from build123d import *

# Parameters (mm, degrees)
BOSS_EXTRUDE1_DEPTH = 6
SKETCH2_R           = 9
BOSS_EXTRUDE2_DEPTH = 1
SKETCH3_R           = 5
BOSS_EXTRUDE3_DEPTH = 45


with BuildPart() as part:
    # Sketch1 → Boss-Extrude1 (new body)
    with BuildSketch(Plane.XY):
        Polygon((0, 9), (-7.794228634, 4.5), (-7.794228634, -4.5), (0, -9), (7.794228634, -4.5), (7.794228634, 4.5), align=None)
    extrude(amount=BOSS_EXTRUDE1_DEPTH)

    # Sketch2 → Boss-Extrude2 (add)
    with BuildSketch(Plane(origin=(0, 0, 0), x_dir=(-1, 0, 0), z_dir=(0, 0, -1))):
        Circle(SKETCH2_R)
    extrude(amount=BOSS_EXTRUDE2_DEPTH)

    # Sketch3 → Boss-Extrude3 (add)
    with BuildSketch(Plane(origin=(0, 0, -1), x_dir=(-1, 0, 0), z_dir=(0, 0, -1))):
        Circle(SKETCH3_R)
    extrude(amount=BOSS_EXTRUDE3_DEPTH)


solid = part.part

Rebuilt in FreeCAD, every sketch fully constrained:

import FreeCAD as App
import Part
import Sketcher

V = App.Vector
Q = App.Units.Quantity


def add_polygon(sketch, points):
    """Adds a closed chain of lines whose ends are joined by coincident constraints."""
    first, n = sketch.GeometryCount, len(points)
    for a, b in zip(points, points[1:] + points[:1]):
        sketch.addGeometry(Part.LineSegment(App.Vector(*a, 0), App.Vector(*b, 0)), False)
    for i in range(n):
        sketch.addConstraint(Sketcher.Constraint("Coincident", first + i, 2, first + (i + 1) % n, 1))

doc = App.newDocument("Part")
params = doc.addObject("Spreadsheet::Sheet", "Params")
for row, (alias, value) in enumerate([
    ("sketch1_height", "9 mm"),
    ("sketch1_length", "9 mm"),
    ("pad1_length", "6 mm"),
    ("sketch2_diameter", "18 mm"),
    ("pad2_length", "1 mm"),
    ("sketch3_diameter", "10 mm"),
    ("pad3_length", "45 mm"),
], start=1):
    params.set(f"A{row}", alias)
    params.set(f"B{row}", "=" + value)
    params.setAlias(f"B{row}", alias)

body = doc.addObject("PartDesign::Body", "Body")

# Sketch on XY plane
sketch1 = body.newObject("Sketcher::SketchObject", "Sketch")
sketch1.AttachmentSupport = (doc.getObject("XY_Plane"), [""])
sketch1.MapMode = "FlatFace"
add_polygon(sketch1, [(0, 9), (-7.794229, 4.5), (-7.794229, -4.5), (0, -9), (7.794229, -4.5), (7.794229, 4.5)])  # lines 0-5
sketch1.addConstraint([
    Sketcher.Constraint("Vertical", 1),
    Sketcher.Constraint("Vertical", 4),
    Sketcher.Constraint("Symmetric", 0, 2, 3, 2, -1, 1),
    Sketcher.Constraint("Symmetric", 2, 2, 5, 2, -1, 1),
    Sketcher.Constraint("PointOnObject", 2, 2, -2),
    Sketcher.Constraint("Parallel", 2, 5),
    Sketcher.Constraint("Horizontal", 1, 2, 3, 2),
    Sketcher.Constraint("DistanceY", 1, 2, 1, 1, Q("9 mm")),
    Sketcher.Constraint("Angle", 0, Q("-150 deg")),
    Sketcher.Constraint("Distance", 0, Q("9 mm")),
])
sketch1.setExpression("Constraints[13]", "Params.sketch1_height")
sketch1.setExpression("Constraints[15]", "Params.sketch1_length")
pad1 = body.newObject("PartDesign::Pad", "Pad")
pad1.Profile = sketch1
pad1.setExpression("Length", "Params.pad1_length")

# Sketch on XY plane
sketch2 = body.newObject("Sketcher::SketchObject", "Sketch001")
sketch2.AttachmentSupport = (doc.getObject("XY_Plane"), [""])
sketch2.MapMode = "FlatFace"
sketch2.addGeometry(Part.Circle(V(0, 0, 0), V(0, 0, 1), 9), False)
sketch2.addConstraint([
    Sketcher.Constraint("Coincident", 0, 3, -1, 1),
    Sketcher.Constraint("Diameter", 0, Q("18 mm")),
])
sketch2.setExpression("Constraints[1]", "Params.sketch2_diameter")
pad2 = body.newObject("PartDesign::Pad", "Pad001")
pad2.Profile = sketch2
pad2.setExpression("Length", "Params.pad2_length")
pad2.Reversed = True

# Sketch on XY plane
sketch3 = body.newObject("Sketcher::SketchObject", "Sketch002")
sketch3.AttachmentSupport = (doc.getObject("XY_Plane"), [""])
sketch3.MapMode = "FlatFace"
sketch3.AttachmentOffset = App.Placement(V(0, 0, -1), App.Rotation())
sketch3.addGeometry(Part.Circle(V(0, 0, 0), V(0, 0, 1), 5), False)
sketch3.addConstraint([
    Sketcher.Constraint("Coincident", 0, 3, -1, 1),
    Sketcher.Constraint("Diameter", 0, Q("10 mm")),
])
sketch3.setExpression("Constraints[1]", "Params.sketch3_diameter")
pad3 = body.newObject("PartDesign::Pad", "Pad002")
pad3.Profile = sketch3
pad3.setExpression("Length", "Params.pad3_length")
pad3.Reversed = True

doc.recompute()
